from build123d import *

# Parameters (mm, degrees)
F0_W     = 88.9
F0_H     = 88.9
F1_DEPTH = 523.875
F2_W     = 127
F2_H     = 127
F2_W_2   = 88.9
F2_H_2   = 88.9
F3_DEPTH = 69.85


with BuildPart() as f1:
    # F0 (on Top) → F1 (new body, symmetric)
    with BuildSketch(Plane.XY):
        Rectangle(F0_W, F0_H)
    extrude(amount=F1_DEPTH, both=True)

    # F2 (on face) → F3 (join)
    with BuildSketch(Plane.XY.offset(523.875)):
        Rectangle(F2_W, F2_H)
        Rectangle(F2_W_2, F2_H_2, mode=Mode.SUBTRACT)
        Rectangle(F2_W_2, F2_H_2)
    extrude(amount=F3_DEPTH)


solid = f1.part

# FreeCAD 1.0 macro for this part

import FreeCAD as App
import Part
import Sketcher

V = App.Vector
Q = App.Units.Quantity


def add_polygon(sketch, points):
    """Adds a closed chain of lines whose ends are joined by coincident constraints."""
    first, n = sketch.GeometryCount, len(points)
    for a, b in zip(points, points[1:] + points[:1]):
        sketch.addGeometry(Part.LineSegment(App.Vector(*a, 0), App.Vector(*b, 0)), False)
    for i in range(n):
        sketch.addConstraint(Sketcher.Constraint("Coincident", first + i, 2, first + (i + 1) % n, 1))

doc = App.newDocument("Part")
body = doc.addObject("PartDesign::Body", "Body")

sketch1 = body.newObject("Sketcher::SketchObject", "Sketch")
sketch1.AttachmentSupport = (doc.getObject("XY_Plane"), [""])
sketch1.MapMode = "FlatFace"
add_polygon(sketch1, [(-44.45, 44.45), (-44.45, -44.45), (44.45, -44.45), (44.45, 44.45)])
sketch1.addConstraint([
    Sketcher.Constraint("Vertical", 0),
    Sketcher.Constraint("Horizontal", 1),
    Sketcher.Constraint("Vertical", 2),
    Sketcher.Constraint("Horizontal", 3),
    Sketcher.Constraint("Symmetric", 0, 2, 2, 2, -1, 1),
    Sketcher.Constraint("Equal", 3, 0),
    Sketcher.Constraint("DistanceX", 1, 1, 1, 2, Q("3.5 in")),
])
pad1 = body.newObject("PartDesign::Pad", "Pad")
pad1.Profile = sketch1
pad1.Length = Q("41.25 in")
pad1.Midplane = True

sketch2 = body.newObject("Sketcher::SketchObject", "Sketch001")
sketch2.AttachmentSupport = (doc.getObject("XY_Plane"), [""])
sketch2.MapMode = "FlatFace"
sketch2.AttachmentOffset = App.Placement(V(0, 0, 20.625 * 25.4), App.Rotation())
add_polygon(sketch2, [(-63.5, 63.5), (-63.5, -63.5), (63.5, -63.5), (63.5, 63.5)])
sketch2.addConstraint([
    Sketcher.Constraint("Vertical", 0),
    Sketcher.Constraint("Horizontal", 1),
    Sketcher.Constraint("Vertical", 2),
    Sketcher.Constraint("Horizontal", 3),
    Sketcher.Constraint("Symmetric", 0, 2, 2, 2, -1, 1),
    Sketcher.Constraint("Equal", 3, 0),
    Sketcher.Constraint("DistanceX", 1, 1, 1, 2, Q("5 in")),
])
pad2 = body.newObject("PartDesign::Pad", "Pad001")
pad2.Profile = sketch2
pad2.Length = Q("2.75 in")

doc.recompute()
